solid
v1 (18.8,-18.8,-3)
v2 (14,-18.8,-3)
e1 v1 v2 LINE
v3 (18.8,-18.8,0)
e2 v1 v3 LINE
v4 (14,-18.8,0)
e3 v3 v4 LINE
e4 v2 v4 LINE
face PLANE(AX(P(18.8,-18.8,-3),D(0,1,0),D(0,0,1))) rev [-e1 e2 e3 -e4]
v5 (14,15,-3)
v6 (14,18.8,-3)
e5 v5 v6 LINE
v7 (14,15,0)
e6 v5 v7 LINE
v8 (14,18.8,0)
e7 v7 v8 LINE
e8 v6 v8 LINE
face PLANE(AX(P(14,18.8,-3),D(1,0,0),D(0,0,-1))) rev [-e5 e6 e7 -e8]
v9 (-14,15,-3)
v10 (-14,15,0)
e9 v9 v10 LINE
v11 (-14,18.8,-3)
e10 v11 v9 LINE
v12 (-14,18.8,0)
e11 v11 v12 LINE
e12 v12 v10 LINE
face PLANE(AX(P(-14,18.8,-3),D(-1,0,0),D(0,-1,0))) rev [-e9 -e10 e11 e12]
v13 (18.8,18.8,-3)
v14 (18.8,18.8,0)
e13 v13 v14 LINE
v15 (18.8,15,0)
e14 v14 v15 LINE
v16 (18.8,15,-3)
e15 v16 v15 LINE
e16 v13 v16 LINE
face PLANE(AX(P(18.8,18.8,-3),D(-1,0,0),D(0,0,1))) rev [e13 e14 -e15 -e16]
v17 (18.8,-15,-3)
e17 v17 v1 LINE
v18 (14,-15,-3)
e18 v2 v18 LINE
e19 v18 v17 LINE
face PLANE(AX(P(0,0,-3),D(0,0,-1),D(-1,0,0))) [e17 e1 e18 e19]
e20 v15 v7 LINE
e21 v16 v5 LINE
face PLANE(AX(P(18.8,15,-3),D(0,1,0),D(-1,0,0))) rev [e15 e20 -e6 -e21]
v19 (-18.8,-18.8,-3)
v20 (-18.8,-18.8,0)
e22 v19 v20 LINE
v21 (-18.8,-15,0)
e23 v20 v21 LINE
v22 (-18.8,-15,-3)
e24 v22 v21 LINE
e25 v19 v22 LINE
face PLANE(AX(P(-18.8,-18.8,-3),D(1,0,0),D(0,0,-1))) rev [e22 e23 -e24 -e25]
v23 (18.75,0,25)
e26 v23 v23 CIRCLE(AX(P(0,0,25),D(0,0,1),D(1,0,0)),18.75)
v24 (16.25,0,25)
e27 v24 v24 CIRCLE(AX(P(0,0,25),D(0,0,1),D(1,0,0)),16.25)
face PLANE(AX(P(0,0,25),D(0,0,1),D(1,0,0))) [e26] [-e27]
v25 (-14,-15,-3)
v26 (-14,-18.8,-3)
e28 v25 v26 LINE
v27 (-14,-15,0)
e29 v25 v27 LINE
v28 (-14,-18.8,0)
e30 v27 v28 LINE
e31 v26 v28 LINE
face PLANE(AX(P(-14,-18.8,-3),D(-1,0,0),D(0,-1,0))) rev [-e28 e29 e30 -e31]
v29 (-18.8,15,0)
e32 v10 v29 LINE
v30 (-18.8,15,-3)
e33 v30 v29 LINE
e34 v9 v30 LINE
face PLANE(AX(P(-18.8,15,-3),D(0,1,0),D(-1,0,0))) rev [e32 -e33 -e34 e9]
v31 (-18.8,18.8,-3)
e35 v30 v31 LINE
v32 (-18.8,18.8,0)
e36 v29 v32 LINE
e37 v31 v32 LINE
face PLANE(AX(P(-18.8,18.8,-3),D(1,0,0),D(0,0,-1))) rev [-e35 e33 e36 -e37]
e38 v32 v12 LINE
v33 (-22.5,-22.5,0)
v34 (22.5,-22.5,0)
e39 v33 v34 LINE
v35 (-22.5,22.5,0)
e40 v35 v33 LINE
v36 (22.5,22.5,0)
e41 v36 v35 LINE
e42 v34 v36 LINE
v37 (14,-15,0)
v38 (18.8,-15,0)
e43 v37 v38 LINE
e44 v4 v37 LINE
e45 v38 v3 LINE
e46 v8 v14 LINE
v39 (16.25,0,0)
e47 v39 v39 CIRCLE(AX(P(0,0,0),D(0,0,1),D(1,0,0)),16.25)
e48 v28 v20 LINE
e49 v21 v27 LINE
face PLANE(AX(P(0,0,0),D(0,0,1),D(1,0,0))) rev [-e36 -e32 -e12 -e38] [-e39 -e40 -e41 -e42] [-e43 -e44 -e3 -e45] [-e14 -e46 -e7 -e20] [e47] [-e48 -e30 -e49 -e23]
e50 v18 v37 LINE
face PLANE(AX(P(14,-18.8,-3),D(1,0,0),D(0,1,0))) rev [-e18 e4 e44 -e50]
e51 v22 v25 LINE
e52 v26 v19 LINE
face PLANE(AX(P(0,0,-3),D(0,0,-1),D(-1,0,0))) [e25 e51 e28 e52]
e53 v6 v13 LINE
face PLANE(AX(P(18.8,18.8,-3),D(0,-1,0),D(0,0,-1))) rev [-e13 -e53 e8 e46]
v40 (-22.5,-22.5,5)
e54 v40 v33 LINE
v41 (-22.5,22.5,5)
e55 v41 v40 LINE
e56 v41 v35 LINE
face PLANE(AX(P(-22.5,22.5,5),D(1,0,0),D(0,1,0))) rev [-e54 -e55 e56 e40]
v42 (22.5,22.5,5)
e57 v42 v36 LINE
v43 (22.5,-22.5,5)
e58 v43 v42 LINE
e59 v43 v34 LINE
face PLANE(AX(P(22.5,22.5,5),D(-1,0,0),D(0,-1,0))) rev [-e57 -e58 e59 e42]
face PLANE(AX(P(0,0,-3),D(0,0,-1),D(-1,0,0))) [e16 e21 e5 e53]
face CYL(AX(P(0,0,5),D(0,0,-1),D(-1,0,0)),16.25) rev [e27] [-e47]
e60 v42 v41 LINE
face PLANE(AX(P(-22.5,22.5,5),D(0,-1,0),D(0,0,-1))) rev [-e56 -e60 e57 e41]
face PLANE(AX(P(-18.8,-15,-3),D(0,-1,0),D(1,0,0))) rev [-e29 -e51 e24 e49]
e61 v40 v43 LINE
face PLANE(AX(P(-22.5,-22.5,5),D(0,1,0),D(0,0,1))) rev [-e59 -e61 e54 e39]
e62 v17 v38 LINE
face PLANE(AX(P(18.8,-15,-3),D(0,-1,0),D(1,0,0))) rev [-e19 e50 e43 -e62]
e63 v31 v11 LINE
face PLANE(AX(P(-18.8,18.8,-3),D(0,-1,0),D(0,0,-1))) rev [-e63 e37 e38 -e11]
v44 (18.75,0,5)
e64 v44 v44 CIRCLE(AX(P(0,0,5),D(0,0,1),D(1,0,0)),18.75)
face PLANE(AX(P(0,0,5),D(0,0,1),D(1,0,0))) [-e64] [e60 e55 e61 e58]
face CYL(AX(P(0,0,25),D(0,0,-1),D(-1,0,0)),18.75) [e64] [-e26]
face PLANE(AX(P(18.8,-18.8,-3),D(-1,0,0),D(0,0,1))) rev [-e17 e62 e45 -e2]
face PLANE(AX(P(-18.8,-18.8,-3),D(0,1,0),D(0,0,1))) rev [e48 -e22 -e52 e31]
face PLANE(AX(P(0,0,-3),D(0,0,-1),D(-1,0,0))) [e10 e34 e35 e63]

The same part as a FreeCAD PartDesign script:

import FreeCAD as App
import Part
import Sketcher

V = App.Vector
Q = App.Units.Quantity

doc = App.newDocument("Part")
body = doc.addObject("PartDesign::Body", "Body")

# Sketch on XY plane
sketch1 = body.newObject("Sketcher::SketchObject", "Sketch")
sketch1.AttachmentSupport = (doc.getObject("XY_Plane"), [""])
sketch1.MapMode = "FlatFace"
sketch1.addGeometry([
    Part.LineSegment(V(-22.5, 22.5, 0), V(-22.5, -22.5, 0)),  # 0
    Part.LineSegment(V(-22.5, -22.5, 0), V(22.5, -22.5, 0)),  # 1
    Part.LineSegment(V(22.5, -22.5, 0), V(22.5, 22.5, 0)),  # 2
    Part.LineSegment(V(22.5, 22.5, 0), V(-22.5, 22.5, 0)),  # 3
    Part.Circle(V(0, 0, 0), V(0, 0, 1), 16.25),  # 4
], False)
sketch1.addConstraint([
    Sketcher.Constraint("Coincident", 0, 2, 1, 1),
    Sketcher.Constraint("Coincident", 1, 2, 2, 1),
    Sketcher.Constraint("Coincident", 2, 2, 3, 1),
    Sketcher.Constraint("Coincident", 3, 2, 0, 1),
    Sketcher.Constraint("Vertical", 0),
    Sketcher.Constraint("Horizontal", 1),
    Sketcher.Constraint("Vertical", 2),
    Sketcher.Constraint("Horizontal", 3),
    Sketcher.Constraint("Coincident", 4, 3, -1, 1),
    Sketcher.Constraint("Symmetric", 0, 2, 2, 2, -1, 1),
    Sketcher.Constraint("Equal", 3, 0),
    Sketcher.Constraint("Diameter", 4, Q("32.5 mm")),
    Sketcher.Constraint("DistanceX", 1, 1, 1, 2, Q("45 mm")),
])
pad1 = body.newObject("PartDesign::Pad", "Pad")
pad1.Profile = sketch1
pad1.Length = 5

# Sketch on XY plane
sketch2 = body.newObject("Sketcher::SketchObject", "Sketch001")
sketch2.AttachmentSupport = (doc.getObject("XY_Plane"), [""])
sketch2.MapMode = "FlatFace"
sketch2.AttachmentOffset = App.Placement(V(0, 0, 5), App.Rotation())
sketch2.addGeometry([
    Part.Circle(V(0, 0, 0), V(0, 0, 1), 18.75),
    Part.Circle(V(0, 0, 0), V(0, 0, 1), 16.25),
], False)
sketch2.addConstraint([
    Sketcher.Constraint("Coincident", 0, 3, -1, 1),
    Sketcher.Constraint("Coincident", 1, 3, -1, 1),
    Sketcher.Constraint("Diameter", 0, Q("37.5 mm")),
    Sketcher.Constraint("Diameter", 1, Q("32.5 mm")),
])
pad2 = body.newObject("PartDesign::Pad", "Pad001")
pad2.Profile = sketch2
pad2.Length = 20

# Sketch on XY plane
sketch3 = body.newObject("Sketcher::SketchObject", "Sketch002")
sketch3.AttachmentSupport = (doc.getObject("XY_Plane"), [""])
sketch3.MapMode = "FlatFace"
sketch3.addGeometry([
    Part.LineSegment(V(-14, 18.8, 0), V(-14, 15, 0)),  # 0
    Part.LineSegment(V(-14, 15, 0), V(-18.8, 15, 0)),  # 1
    Part.LineSegment(V(-18.8, 15, 0), V(-18.8, 18.8, 0)),  # 2
    Part.LineSegment(V(-18.8, 18.8, 0), V(-14, 18.8, 0)),  # 3
    Part.LineSegment(V(18.8, 18.8, 0), V(18.8, 15, 0)),  # 4
    Part.LineSegment(V(18.8, 15, 0), V(14, 15, 0)),  # 5
    Part.LineSegment(V(14, 15, 0), V(14, 18.8, 0)),  # 6
    Part.LineSegment(V(14, 18.8, 0), V(18.8, 18.8, 0)),  # 7
    Part.LineSegment(V(18.8, -15, 0), V(18.8, -18.8, 0)),  # 8
    Part.LineSegment(V(18.8, -18.8, 0), V(14, -18.8, 0)),  # 9
    Part.LineSegment(V(14, -18.8, 0), V(14, -15, 0)),  # 10
    Part.LineSegment(V(14, -15, 0), V(18.8, -15, 0)),  # 11
    Part.LineSegment(V(-14, -15, 0), V(-14, -18.8, 0)),  # 12
    Part.LineSegment(V(-14, -18.8, 0), V(-18.8, -18.8, 0)),  # 13
    Part.LineSegment(V(-18.8, -18.8, 0), V(-18.8, -15, 0)),  # 14
    Part.LineSegment(V(-18.8, -15, 0), V(-14, -15, 0)),  # 15
], False)
sketch3.addConstraint([
    Sketcher.Constraint("Coincident", 0, 2, 1, 1),
    Sketcher.Constraint("Coincident", 1, 2, 2, 1),
    Sketcher.Constraint("Coincident", 2, 2, 3, 1),
    Sketcher.Constraint("Coincident", 3, 2, 0, 1),
    Sketcher.Constraint("Coincident", 4, 2, 5, 1),
    Sketcher.Constraint("Coincident", 5, 2, 6, 1),
    Sketcher.Constraint("Coincident", 6, 2, 7, 1),
    Sketcher.Constraint("Coincident", 7, 2, 4, 1),
    Sketcher.Constraint("Coincident", 8, 2, 9, 1),
    Sketcher.Constraint("Coincident", 9, 2, 10, 1),
    Sketcher.Constraint("Coincident", 10, 2, 11, 1),
    Sketcher.Constraint("Coincident", 11, 2, 8, 1),
    Sketcher.Constraint("Coincident", 12, 2, 13, 1),
    Sketcher.Constraint("Coincident", 13, 2, 14, 1),
    Sketcher.Constraint("Coincident", 14, 2, 15, 1),
    Sketcher.Constraint("Coincident", 15, 2, 12, 1),
    Sketcher.Constraint("Vertical", 0),
    Sketcher.Constraint("Horizontal", 1),
    Sketcher.Constraint("Vertical", 2),
    Sketcher.Constraint("Horizontal", 3),
    Sketcher.Constraint("Vertical", 4),
    Sketcher.Constraint("Horizontal", 5),
    Sketcher.Constraint("Vertical", 6),
    Sketcher.Constraint("Horizontal", 7),
    Sketcher.Constraint("Vertical", 8),
    Sketcher.Constraint("Horizontal", 9),
    Sketcher.Constraint("Vertical", 10),
    Sketcher.Constraint("Horizontal", 11),
    Sketcher.Constraint("Vertical", 12),
    Sketcher.Constraint("Horizontal", 13),
    Sketcher.Constraint("Vertical", 14),
    Sketcher.Constraint("Horizontal", 15),
    Sketcher.Constraint("Symmetric", 2, 2, 8, 2, -1, 1),
    Sketcher.Constraint("Symmetric", 0, 2, 10, 2, -1, 1),
    Sketcher.Constraint("Symmetric", 6, 2, 12, 2, -1, 1),
    Sketcher.Constraint("Symmetric", 4, 2, 14, 2, -1, 1),
    Sketcher.Constraint("Symmetric", 1, 2, 4, 2, -2),
    Sketcher.Constraint("Symmetric", 3, 2, 6, 2, -2),
    Sketcher.Constraint("DistanceX", 1, 2, 1, 1, Q("4.8 mm")),
    Sketcher.Constraint("DistanceY", 0, 2, 0, 1, Q("3.8 mm")),
    Sketcher.Constraint("DistanceX", 0, 2, -1, 1, Q("14 mm")),
    Sketcher.Constraint("DistanceY", -1, 1, 0, 2, Q("15 mm")),
])
pad3 = body.newObject("PartDesign::Pad", "Pad002")
pad3.Profile = sketch3
pad3.Length = 3
pad3.Reversed = True

doc.recompute()
